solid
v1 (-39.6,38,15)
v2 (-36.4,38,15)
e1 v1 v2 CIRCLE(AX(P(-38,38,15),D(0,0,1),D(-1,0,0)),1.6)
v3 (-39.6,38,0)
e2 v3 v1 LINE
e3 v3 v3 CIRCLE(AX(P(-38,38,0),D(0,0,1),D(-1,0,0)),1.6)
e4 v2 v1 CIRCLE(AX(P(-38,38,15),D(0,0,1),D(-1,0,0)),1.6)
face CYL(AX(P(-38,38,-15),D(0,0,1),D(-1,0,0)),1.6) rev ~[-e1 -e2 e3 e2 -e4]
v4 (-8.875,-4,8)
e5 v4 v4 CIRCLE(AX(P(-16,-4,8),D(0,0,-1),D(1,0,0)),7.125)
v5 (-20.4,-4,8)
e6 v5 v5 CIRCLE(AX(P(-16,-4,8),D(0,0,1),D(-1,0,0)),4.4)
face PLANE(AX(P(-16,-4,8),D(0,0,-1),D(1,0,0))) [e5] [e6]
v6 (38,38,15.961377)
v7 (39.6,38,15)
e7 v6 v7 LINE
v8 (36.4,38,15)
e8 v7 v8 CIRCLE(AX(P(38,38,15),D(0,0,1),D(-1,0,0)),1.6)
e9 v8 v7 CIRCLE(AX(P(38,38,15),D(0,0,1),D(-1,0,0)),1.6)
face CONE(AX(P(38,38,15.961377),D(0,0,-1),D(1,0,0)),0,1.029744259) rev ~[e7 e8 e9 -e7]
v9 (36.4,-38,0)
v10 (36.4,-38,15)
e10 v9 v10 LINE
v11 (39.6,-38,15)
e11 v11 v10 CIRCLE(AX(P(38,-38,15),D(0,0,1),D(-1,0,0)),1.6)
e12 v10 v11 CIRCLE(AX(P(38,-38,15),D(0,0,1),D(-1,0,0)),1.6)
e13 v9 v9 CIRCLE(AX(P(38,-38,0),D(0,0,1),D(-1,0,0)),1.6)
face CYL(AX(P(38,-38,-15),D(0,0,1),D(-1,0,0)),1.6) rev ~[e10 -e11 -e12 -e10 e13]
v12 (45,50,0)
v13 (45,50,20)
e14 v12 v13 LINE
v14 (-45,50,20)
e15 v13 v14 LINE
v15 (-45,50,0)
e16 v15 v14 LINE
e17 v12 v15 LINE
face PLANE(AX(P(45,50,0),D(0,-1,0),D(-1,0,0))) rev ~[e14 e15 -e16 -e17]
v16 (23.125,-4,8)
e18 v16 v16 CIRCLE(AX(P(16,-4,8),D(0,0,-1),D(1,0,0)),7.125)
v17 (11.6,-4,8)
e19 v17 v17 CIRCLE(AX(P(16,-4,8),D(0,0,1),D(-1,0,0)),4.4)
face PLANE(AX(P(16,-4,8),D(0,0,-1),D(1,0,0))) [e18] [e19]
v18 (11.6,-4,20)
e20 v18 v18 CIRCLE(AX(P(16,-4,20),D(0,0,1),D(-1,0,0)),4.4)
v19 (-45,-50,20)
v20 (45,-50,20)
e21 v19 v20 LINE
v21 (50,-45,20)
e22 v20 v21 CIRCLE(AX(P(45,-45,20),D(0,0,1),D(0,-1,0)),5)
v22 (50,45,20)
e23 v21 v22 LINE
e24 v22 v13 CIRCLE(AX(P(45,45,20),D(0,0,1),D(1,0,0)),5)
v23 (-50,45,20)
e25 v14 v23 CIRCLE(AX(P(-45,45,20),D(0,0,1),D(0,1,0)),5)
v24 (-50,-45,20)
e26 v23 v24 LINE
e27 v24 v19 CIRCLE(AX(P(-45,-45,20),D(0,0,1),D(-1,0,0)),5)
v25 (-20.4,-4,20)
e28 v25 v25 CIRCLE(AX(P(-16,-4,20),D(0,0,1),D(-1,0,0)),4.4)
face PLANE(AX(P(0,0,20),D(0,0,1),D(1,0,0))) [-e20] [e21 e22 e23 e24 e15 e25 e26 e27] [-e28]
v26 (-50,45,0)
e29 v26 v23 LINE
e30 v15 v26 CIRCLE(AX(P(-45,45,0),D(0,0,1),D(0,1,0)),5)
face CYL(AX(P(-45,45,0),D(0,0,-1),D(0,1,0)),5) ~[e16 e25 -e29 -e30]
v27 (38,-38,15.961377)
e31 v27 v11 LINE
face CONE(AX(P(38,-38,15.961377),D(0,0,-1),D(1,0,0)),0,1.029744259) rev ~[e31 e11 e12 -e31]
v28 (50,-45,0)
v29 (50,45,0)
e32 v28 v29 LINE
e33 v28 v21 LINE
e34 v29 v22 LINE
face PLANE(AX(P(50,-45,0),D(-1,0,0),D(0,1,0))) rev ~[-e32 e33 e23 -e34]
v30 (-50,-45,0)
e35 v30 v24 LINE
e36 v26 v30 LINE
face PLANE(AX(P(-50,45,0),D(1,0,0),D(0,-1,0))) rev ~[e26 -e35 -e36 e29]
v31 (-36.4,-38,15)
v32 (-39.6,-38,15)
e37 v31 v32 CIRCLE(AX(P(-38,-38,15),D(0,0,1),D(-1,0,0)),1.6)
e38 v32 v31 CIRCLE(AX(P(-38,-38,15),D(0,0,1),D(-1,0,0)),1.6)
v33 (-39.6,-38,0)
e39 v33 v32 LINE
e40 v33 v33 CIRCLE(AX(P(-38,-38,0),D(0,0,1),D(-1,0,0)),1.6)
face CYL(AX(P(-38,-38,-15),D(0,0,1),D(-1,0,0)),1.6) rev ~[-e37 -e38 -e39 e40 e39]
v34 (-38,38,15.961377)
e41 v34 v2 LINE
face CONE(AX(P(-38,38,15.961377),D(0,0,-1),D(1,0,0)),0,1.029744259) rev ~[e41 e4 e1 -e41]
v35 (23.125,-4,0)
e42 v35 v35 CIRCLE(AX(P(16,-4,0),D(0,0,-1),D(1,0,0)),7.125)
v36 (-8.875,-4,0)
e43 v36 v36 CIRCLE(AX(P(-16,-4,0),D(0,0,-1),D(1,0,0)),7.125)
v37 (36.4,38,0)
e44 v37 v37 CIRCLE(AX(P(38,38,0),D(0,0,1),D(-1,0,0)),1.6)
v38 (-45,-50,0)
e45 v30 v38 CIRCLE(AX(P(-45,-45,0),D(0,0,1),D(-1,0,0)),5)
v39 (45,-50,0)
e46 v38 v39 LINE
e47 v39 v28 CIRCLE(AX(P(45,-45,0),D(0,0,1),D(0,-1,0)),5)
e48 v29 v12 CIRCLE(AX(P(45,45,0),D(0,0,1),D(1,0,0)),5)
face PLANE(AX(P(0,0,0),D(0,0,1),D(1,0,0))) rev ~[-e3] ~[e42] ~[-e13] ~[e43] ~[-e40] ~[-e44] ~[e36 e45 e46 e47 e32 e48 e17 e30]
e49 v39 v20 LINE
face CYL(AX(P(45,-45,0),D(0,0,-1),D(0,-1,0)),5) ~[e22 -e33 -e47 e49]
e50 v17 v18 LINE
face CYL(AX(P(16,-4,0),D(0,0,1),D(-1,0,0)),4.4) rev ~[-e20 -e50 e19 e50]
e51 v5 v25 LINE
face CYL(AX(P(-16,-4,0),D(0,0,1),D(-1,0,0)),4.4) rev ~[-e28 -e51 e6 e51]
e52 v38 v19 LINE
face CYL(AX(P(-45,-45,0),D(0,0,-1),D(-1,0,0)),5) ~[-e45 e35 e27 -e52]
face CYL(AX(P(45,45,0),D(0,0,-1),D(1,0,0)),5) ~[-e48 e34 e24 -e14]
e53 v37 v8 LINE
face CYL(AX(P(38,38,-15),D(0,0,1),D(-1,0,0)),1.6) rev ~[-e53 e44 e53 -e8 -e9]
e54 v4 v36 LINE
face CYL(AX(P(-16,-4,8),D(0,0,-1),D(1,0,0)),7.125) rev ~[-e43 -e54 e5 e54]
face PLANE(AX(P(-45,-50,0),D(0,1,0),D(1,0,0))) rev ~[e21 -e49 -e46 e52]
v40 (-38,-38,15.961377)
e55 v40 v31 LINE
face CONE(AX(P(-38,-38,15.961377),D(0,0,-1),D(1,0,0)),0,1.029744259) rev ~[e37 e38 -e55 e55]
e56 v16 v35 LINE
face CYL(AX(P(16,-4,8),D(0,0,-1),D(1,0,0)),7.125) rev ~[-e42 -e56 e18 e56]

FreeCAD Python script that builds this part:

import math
import FreeCAD as App
import Part
import Sketcher
Q = App.Units.Quantity

doc = App.newDocument("Part")
body = doc.addObject("PartDesign::Body", "Body")

# Sketch on XY plane
sketch1 = body.newObject("Sketcher::SketchObject", "Sketch")
sketch1.AttachmentSupport = (doc.getObject("XY_Plane"), [""])
sketch1.MapMode = "FlatFace"
sketch1.addGeometry([
    Part.ArcOfCircle(Part.Circle(App.Vector(-45, -45, 0), App.Vector(0, 0, 1), 5), math.radians(180), math.radians(270)),  # 0
    Part.LineSegment(App.Vector(-45, -50, 0), App.Vector(45, -50, 0)),  # 1
    Part.ArcOfCircle(Part.Circle(App.Vector(45, -45, 0), App.Vector(0, 0, 1), 5), math.radians(-90), math.radians(0)),  # 2
    Part.LineSegment(App.Vector(50, -45, 0), App.Vector(50, 45, 0)),  # 3
    Part.ArcOfCircle(Part.Circle(App.Vector(45, 45, 0), App.Vector(0, 0, 1), 5), math.radians(0), math.radians(90)),  # 4
    Part.LineSegment(App.Vector(45, 50, 0), App.Vector(-45, 50, 0)),  # 5
    Part.ArcOfCircle(Part.Circle(App.Vector(-45, 45, 0), App.Vector(0, 0, 1), 5), math.radians(90), math.radians(180)),  # 6
    Part.LineSegment(App.Vector(-50, 45, 0), App.Vector(-50, -45, 0)),  # 7
], False)
sketch1.addConstraint([
    Sketcher.Constraint("Tangent", 0, 2, 1, 1),
    Sketcher.Constraint("Tangent", 1, 2, 2, 1),
    Sketcher.Constraint("Tangent", 2, 2, 3, 1),
    Sketcher.Constraint("Tangent", 3, 2, 4, 1),
    Sketcher.Constraint("Tangent", 4, 2, 5, 1),
    Sketcher.Constraint("Tangent", 5, 2, 6, 1),
    Sketcher.Constraint("Tangent", 6, 2, 7, 1),
    Sketcher.Constraint("Tangent", 7, 2, 0, 1),
    Sketcher.Constraint("Horizontal", 1),
    Sketcher.Constraint("Vertical", 3),
    Sketcher.Constraint("Horizontal", 5),
    Sketcher.Constraint("Vertical", 7),
    Sketcher.Constraint("Equal", 0, 2),
    Sketcher.Constraint("Equal", 2, 4),
    Sketcher.Constraint("Equal", 4, 6),
    Sketcher.Constraint("Symmetric", 0, 3, 4, 3, -1, 1),
    Sketcher.Constraint("Equal", 5, 3),
    Sketcher.Constraint("Radius", 0, Q("5 mm")),
    Sketcher.Constraint("DistanceX", 1, 1, 1, 2, Q("90 mm")),
])
pad1 = body.newObject("PartDesign::Pad", "Pad")
pad1.Profile = sketch1
pad1.Length = 20

# Sketch on XY plane
sketch2 = body.newObject("Sketcher::SketchObject", "Sketch001")
sketch2.AttachmentSupport = (doc.getObject("XY_Plane"), [""])
sketch2.MapMode = "FlatFace"
sketch2.addGeometry([
    Part.Circle(App.Vector(-16, -4, 0), App.Vector(0, 0, 1), 4.4),
    Part.Circle(App.Vector(16, -4, 0), App.Vector(0, 0, 1), 4.4),
], False)
sketch2.addConstraint([
    Sketcher.Constraint("Equal", 0, 1),
    Sketcher.Constraint("Symmetric", 0, 3, 1, 3, -2),
    Sketcher.Constraint("Diameter", 0, Q("8.8 mm")),
    Sketcher.Constraint("DistanceX", 0, 3, -1, 1, Q("16 mm")),
    Sketcher.Constraint("DistanceY", 0, 3, -1, 1, Q("4 mm")),
])
doc.recompute()
hole = body.newObject("PartDesign::Hole", "Hole")
hole.Profile = sketch2
hole.ThreadType = "None"
hole.Diameter = 8.8
hole.DepthType = "ThroughAll"
hole.HoleCutType = "Counterbore"
hole.HoleCutDiameter = 14.25
hole.HoleCutDepth = 8
hole.Reversed = True

# Sketch on XY plane
sketch3 = body.newObject("Sketcher::SketchObject", "Sketch002")
sketch3.AttachmentSupport = (doc.getObject("XY_Plane"), [""])
sketch3.MapMode = "FlatFace"
sketch3.addGeometry([
    Part.Circle(App.Vector(-38, -38, 0), App.Vector(0, 0, 1), 1.6),
    Part.Circle(App.Vector(38, -38, 0), App.Vector(0, 0, 1), 1.6),
    Part.Circle(App.Vector(38, 38, 0), App.Vector(0, 0, 1), 1.6),
    Part.Circle(App.Vector(-38, 38, 0), App.Vector(0, 0, 1), 1.6),
], False)
sketch3.addConstraint([
    Sketcher.Constraint("Equal", 0, 1),
    Sketcher.Constraint("Equal", 1, 2),
    Sketcher.Constraint("Equal", 2, 3),
    Sketcher.Constraint("Symmetric", 0, 3, 2, 3, -1, 1),
    Sketcher.Constraint("Symmetric", 1, 3, 3, 3, -1, 1),
    Sketcher.Constraint("Symmetric", 0, 3, 1, 3, -2),
    Sketcher.Constraint("Diameter", 0, Q("3.2 mm")),
    Sketcher.Constraint("DistanceX", 0, 3, -1, 1, Q("38 mm")),
    Sketcher.Constraint("DistanceY", 0, 3, -1, 1, Q("38 mm")),
])
doc.recompute()
hole2 = body.newObject("PartDesign::Hole", "Hole001")
hole2.Profile = sketch3
hole2.ThreadType = "None"
hole2.Diameter = 3.2
hole2.DepthType = "Dimension"
hole2.Depth = 15
hole2.DrillPoint = "Angled"
hole2.DrillPointAngle = 118
hole2.Reversed = True

doc.recompute()
